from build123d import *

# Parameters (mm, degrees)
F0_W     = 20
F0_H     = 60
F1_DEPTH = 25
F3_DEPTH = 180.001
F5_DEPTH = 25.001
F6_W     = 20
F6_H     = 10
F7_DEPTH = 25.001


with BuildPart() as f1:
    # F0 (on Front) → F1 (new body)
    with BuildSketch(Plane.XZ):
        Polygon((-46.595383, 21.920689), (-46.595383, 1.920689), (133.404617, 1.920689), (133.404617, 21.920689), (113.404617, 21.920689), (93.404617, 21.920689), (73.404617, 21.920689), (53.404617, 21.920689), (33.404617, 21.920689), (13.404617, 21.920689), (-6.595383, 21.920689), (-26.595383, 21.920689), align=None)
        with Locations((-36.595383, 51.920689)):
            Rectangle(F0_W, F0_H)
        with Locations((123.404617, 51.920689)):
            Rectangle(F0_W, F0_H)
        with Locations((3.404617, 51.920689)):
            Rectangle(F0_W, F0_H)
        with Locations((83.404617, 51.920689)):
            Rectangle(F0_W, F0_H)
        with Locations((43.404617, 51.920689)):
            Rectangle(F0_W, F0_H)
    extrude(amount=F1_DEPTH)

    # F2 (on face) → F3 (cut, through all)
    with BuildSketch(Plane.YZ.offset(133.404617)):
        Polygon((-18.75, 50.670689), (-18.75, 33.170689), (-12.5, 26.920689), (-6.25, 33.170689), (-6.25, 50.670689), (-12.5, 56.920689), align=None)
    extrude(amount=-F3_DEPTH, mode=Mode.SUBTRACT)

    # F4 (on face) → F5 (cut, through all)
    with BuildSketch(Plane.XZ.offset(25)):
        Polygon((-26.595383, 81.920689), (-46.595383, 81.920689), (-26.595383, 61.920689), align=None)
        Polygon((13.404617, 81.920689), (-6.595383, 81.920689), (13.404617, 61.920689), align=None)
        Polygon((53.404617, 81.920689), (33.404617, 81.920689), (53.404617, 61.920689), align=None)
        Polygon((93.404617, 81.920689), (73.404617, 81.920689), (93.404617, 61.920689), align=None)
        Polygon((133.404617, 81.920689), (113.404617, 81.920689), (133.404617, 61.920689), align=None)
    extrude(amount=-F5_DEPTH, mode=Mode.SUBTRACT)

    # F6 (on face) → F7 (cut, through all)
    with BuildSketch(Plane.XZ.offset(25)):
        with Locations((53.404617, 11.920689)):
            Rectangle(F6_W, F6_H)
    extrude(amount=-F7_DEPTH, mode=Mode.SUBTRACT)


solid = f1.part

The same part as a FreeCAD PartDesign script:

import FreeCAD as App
import Part
import Sketcher
from FreeCAD import Vector
Q = App.Units.Quantity


def add_polygon(sketch, points):
    """Adds a closed chain of lines whose ends are joined by coincident constraints."""
    first, n = sketch.GeometryCount, len(points)
    for a, b in zip(points, points[1:] + points[:1]):
        sketch.addGeometry(Part.LineSegment(App.Vector(*a, 0), App.Vector(*b, 0)), False)
    for i in range(n):
        sketch.addConstraint(Sketcher.Constraint("Coincident", first + i, 2, first + (i + 1) % n, 1))

doc = App.newDocument("Part")
body = doc.addObject("PartDesign::Body", "Body")

# Sketch on XZ plane
sketch1 = body.newObject("Sketcher::SketchObject", "Sketch")
sketch1.AttachmentSupport = (doc.getObject("XZ_Plane"), [""])
sketch1.MapMode = "FlatFace"
add_polygon(sketch1, [(-47, 2), (133, 2), (133, 82), (113, 82), (113, 22), (93, 22), (93, 82), (73, 82), (73, 22), (53, 22), (53, 82), (33, 82), (33, 22), (13, 22), (13, 82), (-7, 82), (-7, 22), (-27, 22), (-27, 82), (-47, 82)])  # lines 0-19
sketch1.addConstraint([
    Sketcher.Constraint("Horizontal", 0),
    Sketcher.Constraint("Vertical", 1),
    Sketcher.Constraint("Horizontal", 2),
    Sketcher.Constraint("Vertical", 3),
    Sketcher.Constraint("Horizontal", 4),
    Sketcher.Constraint("Vertical", 5),
    Sketcher.Constraint("Horizontal", 6),
    Sketcher.Constraint("Vertical", 7),
    Sketcher.Constraint("Horizontal", 8),
    Sketcher.Constraint("Vertical", 9),
    Sketcher.Constraint("Horizontal", 10),
    Sketcher.Constraint("Vertical", 11),
    Sketcher.Constraint("Horizontal", 12),
    Sketcher.Constraint("Vertical", 13),
    Sketcher.Constraint("Horizontal", 14),
    Sketcher.Constraint("Vertical", 15),
    Sketcher.Constraint("Horizontal", 16),
    Sketcher.Constraint("Vertical", 17),
    Sketcher.Constraint("Horizontal", 18),
    Sketcher.Constraint("Vertical", 19),
    Sketcher.Constraint("Horizontal", 2, 2, 5, 2),
    Sketcher.Constraint("Horizontal", 4, 2, 7, 2),
    Sketcher.Constraint("Horizontal", 6, 2, 9, 2),
    Sketcher.Constraint("Horizontal", 8, 2, 11, 2),
    Sketcher.Constraint("Horizontal", 10, 2, 13, 2),
    Sketcher.Constraint("Horizontal", 12, 2, 15, 2),
    Sketcher.Constraint("Horizontal", 14, 2, 17, 2),
    Sketcher.Constraint("Equal", 2, 4),
    Sketcher.Constraint("Equal", 4, 6),
    Sketcher.Constraint("Equal", 6, 8),
    Sketcher.Constraint("Equal", 8, 10),
    Sketcher.Constraint("Equal", 10, 12),
    Sketcher.Constraint("Equal", 12, 14),
    Sketcher.Constraint("Equal", 14, 16),
    Sketcher.Constraint("Equal", 16, 18),
    Sketcher.Constraint("DistanceX", 0, 1, 0, 2, Q("180 mm")),
    Sketcher.Constraint("DistanceY", 1, 1, 1, 2, Q("80 mm")),
    Sketcher.Constraint("DistanceY", 3, 2, 3, 1, Q("60 mm")),
    Sketcher.Constraint("DistanceY", -1, 1, 0, 2, Q("1.920689 mm")),
    Sketcher.Constraint("DistanceX", -1, 1, 0, 2, Q("133.404617 mm")),
])
pad1 = body.newObject("PartDesign::Pad", "Pad")
pad1.Profile = sketch1
pad1.Length = 25

# Sketch on YZ plane
sketch2 = body.newObject("Sketcher::SketchObject", "Sketch001")
sketch2.AttachmentSupport = (doc.getObject("YZ_Plane"), [""])
sketch2.MapMode = "FlatFace"
sketch2.AttachmentOffset = App.Placement(Vector(0, 0, 133.404617), App.Rotation())
add_polygon(sketch2, [(-19, 51), (-19, 33), (-12, 27), (-6, 33), (-6, 51), (-12, 57)])  # lines 0-5
sketch2.addConstraint([
    Sketcher.Constraint("Vertical", 0),
    Sketcher.Constraint("Vertical", 3),
    Sketcher.Constraint("Perpendicular", 1, 2),
    Sketcher.Constraint("Perpendicular", 2, 4),
    Sketcher.Constraint("Perpendicular", 4, 5),
    Sketcher.Constraint("Horizontal", 0, 2, 2, 2),
    Sketcher.Constraint("Horizontal", 3, 2, 5, 2),
    Sketcher.Constraint("Vertical", 1, 2, 4, 2),
    Sketcher.Constraint("DistanceY", 0, 2, 0, 1, Q("17.5 mm")),
    Sketcher.Constraint("DistanceY", 1, 2, 4, 2, Q("30 mm")),
    Sketcher.Constraint("DistanceX", 1, 2, -1, 1, Q("12.5 mm")),
    Sketcher.Constraint("DistanceY", -1, 1, 0, 2, Q("33.170689 mm")),
])
pocket1 = body.newObject("PartDesign::Pocket", "Pocket")
pocket1.Profile = sketch2
pocket1.Type = "ThroughAll"

# Sketch on XZ plane
sketch3 = body.newObject("Sketcher::SketchObject", "Sketch002")
sketch3.AttachmentSupport = (doc.getObject("XZ_Plane"), [""])
sketch3.MapMode = "FlatFace"
sketch3.AttachmentOffset = App.Placement(Vector(0, 0, 25), App.Rotation())
add_polygon(sketch3, [(-27, 82), (-47, 82), (-27, 62)])  # lines 0-2
add_polygon(sketch3, [(13, 82), (-7, 82), (13, 62)])  # lines 3-5
add_polygon(sketch3, [(53, 82), (33, 82), (53, 62)])  # lines 6-8
add_polygon(sketch3, [(93, 82), (73, 82), (93, 62)])  # lines 9-11
add_polygon(sketch3, [(133, 82), (113, 82), (133, 62)])  # lines 12-14
sketch3.addConstraint([
    Sketcher.Constraint("Horizontal", 0),
    Sketcher.Constraint("Vertical", 2),
    Sketcher.Constraint("Horizontal", 3),
    Sketcher.Constraint("Vertical", 5),
    Sketcher.Constraint("Horizontal", 6),
    Sketcher.Constraint("Vertical", 8),
    Sketcher.Constraint("Horizontal", 9),
    Sketcher.Constraint("Vertical", 11),
    Sketcher.Constraint("Horizontal", 12),
    Sketcher.Constraint("Vertical", 14),
    Sketcher.Constraint("Parallel", 1, 4),
    Sketcher.Constraint("Parallel", 4, 7),
    Sketcher.Constraint("Parallel", 7, 10),
    Sketcher.Constraint("Parallel", 10, 13),
    Sketcher.Constraint("Horizontal", 2, 2, 3, 2),
    Sketcher.Constraint("Horizontal", 1, 2, 4, 2),
    Sketcher.Constraint("Horizontal", 5, 2, 6, 2),
    Sketcher.Constraint("Horizontal", 4, 2, 7, 2),
    Sketcher.Constraint("Horizontal", 8, 2, 9, 2),
    Sketcher.Constraint("Horizontal", 7, 2, 10, 2),
    Sketcher.Constraint("Horizontal", 11, 2, 12, 2),
    Sketcher.Constraint("Horizontal", 10, 2, 13, 2),
    Sketcher.Constraint("Equal", 12, 2),
    Sketcher.Constraint("DistanceX", 0, 2, 0, 1, Q("20 mm")),
    Sketcher.Constraint("DistanceX", 2, 2, 3, 2, Q("20 mm")),
    Sketcher.Constraint("DistanceX", 5, 2, 6, 2, Q("20 mm")),
    Sketcher.Constraint("DistanceX", 8, 2, 9, 2, Q("20 mm")),
    Sketcher.Constraint("DistanceX", 11, 2, 12, 2, Q("20 mm")),
    Sketcher.Constraint("DistanceY", -1, 1, 0, 2, Q("81.920689 mm")),
    Sketcher.Constraint("DistanceX", 0, 2, -1, 1, Q("46.595383 mm")),
])
pocket2 = body.newObject("PartDesign::Pocket", "Pocket001")
pocket2.Profile = sketch3
pocket2.Type = "ThroughAll"

# Sketch on XZ plane
sketch4 = body.newObject("Sketcher::SketchObject", "Sketch003")
sketch4.AttachmentSupport = (doc.getObject("XZ_Plane"), [""])
sketch4.MapMode = "FlatFace"
sketch4.AttachmentOffset = App.Placement(Vector(0, 0, 25), App.Rotation())
add_polygon(sketch4, [(43, 17), (43, 7), (63, 7), (63, 17)])  # lines 0-3
sketch4.addConstraint([
    Sketcher.Constraint("Vertical", 0),
    Sketcher.Constraint("Horizontal", 1),
    Sketcher.Constraint("Vertical", 2),
    Sketcher.Constraint("Horizontal", 3),
    Sketcher.Constraint("DistanceX", 1, 1, 1, 2, Q("20 mm")),
    Sketcher.Constraint("DistanceY", 0, 2, 0, 1, Q("10 mm")),
    Sketcher.Constraint("DistanceY", -1, 1, 0, 2, Q("6.920689 mm")),
    Sketcher.Constraint("DistanceX", -1, 1, 0, 2, Q("43.404617 mm")),
])
pocket3 = body.newObject("PartDesign::Pocket", "Pocket002")
pocket3.Profile = sketch4
pocket3.Type = "ThroughAll"

doc.recompute()
